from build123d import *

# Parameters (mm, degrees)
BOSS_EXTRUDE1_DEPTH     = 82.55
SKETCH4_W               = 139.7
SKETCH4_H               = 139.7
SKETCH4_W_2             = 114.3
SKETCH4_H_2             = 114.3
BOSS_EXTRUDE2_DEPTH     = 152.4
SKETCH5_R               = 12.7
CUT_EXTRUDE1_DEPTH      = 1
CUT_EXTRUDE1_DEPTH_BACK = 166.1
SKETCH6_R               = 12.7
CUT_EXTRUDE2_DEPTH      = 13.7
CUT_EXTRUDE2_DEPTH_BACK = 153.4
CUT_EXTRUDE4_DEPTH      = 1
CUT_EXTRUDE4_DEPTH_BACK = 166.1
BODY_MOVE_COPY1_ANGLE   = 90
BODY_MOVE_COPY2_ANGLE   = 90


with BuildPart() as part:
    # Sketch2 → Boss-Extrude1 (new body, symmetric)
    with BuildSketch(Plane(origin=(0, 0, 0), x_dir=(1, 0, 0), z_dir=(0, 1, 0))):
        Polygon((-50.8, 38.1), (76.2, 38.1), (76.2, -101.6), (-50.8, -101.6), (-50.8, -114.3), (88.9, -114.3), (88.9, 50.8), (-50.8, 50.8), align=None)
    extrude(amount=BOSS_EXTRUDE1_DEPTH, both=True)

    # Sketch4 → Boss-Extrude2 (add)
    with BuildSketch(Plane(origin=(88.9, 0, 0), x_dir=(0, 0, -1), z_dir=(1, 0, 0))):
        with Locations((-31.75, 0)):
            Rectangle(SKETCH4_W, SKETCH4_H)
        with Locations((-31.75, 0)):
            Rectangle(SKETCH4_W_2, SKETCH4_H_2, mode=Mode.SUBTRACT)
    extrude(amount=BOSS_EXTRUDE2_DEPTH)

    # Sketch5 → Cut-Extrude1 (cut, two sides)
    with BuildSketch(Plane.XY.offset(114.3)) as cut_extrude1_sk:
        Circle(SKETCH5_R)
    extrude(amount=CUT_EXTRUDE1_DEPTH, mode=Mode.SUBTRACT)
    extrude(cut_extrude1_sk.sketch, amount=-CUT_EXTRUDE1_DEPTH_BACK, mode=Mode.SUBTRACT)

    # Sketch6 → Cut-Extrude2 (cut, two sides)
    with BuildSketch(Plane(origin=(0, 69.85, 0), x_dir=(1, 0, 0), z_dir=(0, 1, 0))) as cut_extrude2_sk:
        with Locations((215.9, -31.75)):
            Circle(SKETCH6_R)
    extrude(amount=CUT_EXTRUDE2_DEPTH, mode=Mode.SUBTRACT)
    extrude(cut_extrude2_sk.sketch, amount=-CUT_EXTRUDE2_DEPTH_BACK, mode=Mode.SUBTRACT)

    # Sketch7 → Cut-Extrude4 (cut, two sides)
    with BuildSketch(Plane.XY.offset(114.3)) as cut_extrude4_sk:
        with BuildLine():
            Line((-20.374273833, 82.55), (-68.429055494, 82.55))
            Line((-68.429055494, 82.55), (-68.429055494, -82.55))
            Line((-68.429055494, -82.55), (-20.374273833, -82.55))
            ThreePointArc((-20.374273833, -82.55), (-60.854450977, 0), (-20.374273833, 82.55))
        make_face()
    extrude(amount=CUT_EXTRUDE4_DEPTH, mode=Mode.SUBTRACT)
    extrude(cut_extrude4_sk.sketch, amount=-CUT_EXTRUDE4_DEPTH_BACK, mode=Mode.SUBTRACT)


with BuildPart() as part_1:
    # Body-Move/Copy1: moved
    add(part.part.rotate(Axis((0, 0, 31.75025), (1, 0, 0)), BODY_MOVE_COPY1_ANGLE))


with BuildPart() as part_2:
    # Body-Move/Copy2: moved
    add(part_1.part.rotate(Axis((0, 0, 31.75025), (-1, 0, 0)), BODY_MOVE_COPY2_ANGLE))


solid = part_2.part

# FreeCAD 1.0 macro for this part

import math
import FreeCAD as App
import Part
import Sketcher
Q = App.Units.Quantity


def add_polygon(sketch, points):
    """Adds a closed chain of lines whose ends are joined by coincident constraints."""
    first, n = sketch.GeometryCount, len(points)
    for a, b in zip(points, points[1:] + points[:1]):
        sketch.addGeometry(Part.LineSegment(App.Vector(*a, 0), App.Vector(*b, 0)), False)
    for i in range(n):
        sketch.addConstraint(Sketcher.Constraint("Coincident", first + i, 2, first + (i + 1) % n, 1))

doc = App.newDocument("Part")
body = doc.addObject("PartDesign::Body", "Body")

# Sketch on XZ plane
sketch1 = doc.addObject("Sketcher::SketchObject", "Sketch")
body.addObject(sketch1)
sketch1.AttachmentSupport = (doc.XZ_Plane, [""])
sketch1.MapMode = "FlatFace"
add_polygon(sketch1, [(-50.8, -38.1), (76.2, -38.1), (76.2, 101.6), (-50.8, 101.6), (-50.8, 114.3), (88.9, 114.3), (88.9, -50.8), (-50.8, -50.8)])  # lines 0-7
sketch1.addConstraint(Sketcher.Constraint("Horizontal", 0))
sketch1.addConstraint(Sketcher.Constraint("Vertical", 1))
sketch1.addConstraint(Sketcher.Constraint("Horizontal", 2))
sketch1.addConstraint(Sketcher.Constraint("Vertical", 3))
sketch1.addConstraint(Sketcher.Constraint("Horizontal", 4))
sketch1.addConstraint(Sketcher.Constraint("Vertical", 5))
sketch1.addConstraint(Sketcher.Constraint("Horizontal", 6))
sketch1.addConstraint(Sketcher.Constraint("Vertical", 7))
sketch1.addConstraint(Sketcher.Constraint("Vertical", 3, 2, 6, 2))
sketch1.addConstraint(Sketcher.Constraint("Equal", 6, 1))
sketch1.addConstraint(Sketcher.Constraint("Equal", 3, 7))
sketch1.addConstraint(Sketcher.Constraint("DistanceX", 0, 1, 0, 2, Q("5 in")))
sketch1.addConstraint(Sketcher.Constraint("DistanceX", 4, 1, 4, 2, Q("5.5 in")))
sketch1.addConstraint(Sketcher.Constraint("DistanceY", 3, 1, 3, 2, Q("0.5 in")))
sketch1.addConstraint(Sketcher.Constraint("DistanceX", -1, 1, 0, 2, Q("3 in")))
sketch1.addConstraint(Sketcher.Constraint("DistanceY", -1, 1, 1, 2, Q("4 in")))
pad1 = doc.addObject("PartDesign::Pad", "Pad")
body.addObject(pad1)
pad1.Profile = sketch1
pad1.Length = Q("6.5 in")
pad1.Midplane = True

# Sketch on YZ plane
sketch2 = doc.addObject("Sketcher::SketchObject", "Sketch001")
body.addObject(sketch2)
sketch2.AttachmentSupport = (doc.YZ_Plane, [""])
sketch2.MapMode = "FlatFace"
sketch2.AttachmentOffset = App.Placement(App.Vector(0, 0, 3.5 * 25.4), App.Rotation())
add_polygon(sketch2, [(69.85, 101.6), (-69.85, 101.6), (-69.85, -38.1), (69.85, -38.1)])  # lines 0-3
add_polygon(sketch2, [(-57.15, -25.4), (-57.15, 88.9), (57.15, 88.9), (57.15, -25.4)])  # lines 4-7
sketch2.addConstraint(Sketcher.Constraint("Horizontal", 0))
sketch2.addConstraint(Sketcher.Constraint("Vertical", 1))
sketch2.addConstraint(Sketcher.Constraint("Horizontal", 2))
sketch2.addConstraint(Sketcher.Constraint("Vertical", 3))
sketch2.addConstraint(Sketcher.Constraint("Vertical", 4))
sketch2.addConstraint(Sketcher.Constraint("Horizontal", 5))
sketch2.addConstraint(Sketcher.Constraint("Vertical", 6))
sketch2.addConstraint(Sketcher.Constraint("Horizontal", 7))
sketch2.addConstraint(Sketcher.Constraint("Equal", 2, 1))
sketch2.addConstraint(Sketcher.Constraint("Equal", 7, 4))
sketch2.addConstraint(Sketcher.Constraint("DistanceX", 0, 2, 0, 1, Q("5.5 in")))
sketch2.addConstraint(Sketcher.Constraint("DistanceX", 5, 1, 5, 2, Q("4.5 in")))
sketch2.addConstraint(Sketcher.Constraint("DistanceY", -1, 1, 0, 2, Q("4 in")))
sketch2.addConstraint(Sketcher.Constraint("DistanceY", 6, 2, -1, 1, Q("1 in")))
sketch2.addConstraint(Sketcher.Constraint("DistanceX", 4, 2, 3, 2, Q("5 in")))
sketch2.addConstraint(Sketcher.Constraint("DistanceX", 0, 2, -1, 1, Q("2.75 in")))
pad2 = doc.addObject("PartDesign::Pad", "Pad001")
body.addObject(pad2)
pad2.Profile = sketch2
pad2.Length = Q("6 in")

# Sketch on XY plane
sketch3 = doc.addObject("Sketcher::SketchObject", "Sketch002")
body.addObject(sketch3)
sketch3.AttachmentSupport = (doc.XY_Plane, [""])
sketch3.MapMode = "FlatFace"
sketch3.AttachmentOffset = App.Placement(App.Vector(0, 0, 4.5 * 25.4), App.Rotation())
sketch3.addGeometry(Part.Circle(App.Vector(0, 0, 0), App.Vector(0, 0, 1), 12.7), False)
sketch3.addConstraint(Sketcher.Constraint("Coincident", 0, 3, -1, 1))
sketch3.addConstraint(Sketcher.Constraint("Diameter", 0, Q("1 in")))
pocket1 = doc.addObject("PartDesign::Pocket", "Pocket")
body.addObject(pocket1)
pocket1.Profile = sketch3
pocket1.Type = "ThroughAll"
pocket1.Midplane = True

# Sketch on XZ plane
sketch4 = doc.addObject("Sketcher::SketchObject", "Sketch003")
body.addObject(sketch4)
sketch4.AttachmentSupport = (doc.XZ_Plane, [""])
sketch4.MapMode = "FlatFace"
sketch4.AttachmentOffset = App.Placement(App.Vector(0, 0, -2.75 * 25.4), App.Rotation())
sketch4.addGeometry(Part.Circle(App.Vector(215.9, 31.75, 0), App.Vector(0, 0, 1), 12.7), False)
sketch4.addConstraint(Sketcher.Constraint("Diameter", 0, Q("1 in")))
sketch4.addConstraint(Sketcher.Constraint("DistanceX", -1, 1, 0, 3, Q("8.5 in")))
sketch4.addConstraint(Sketcher.Constraint("DistanceY", -1, 1, 0, 3, Q("1.25 in")))
pocket2 = doc.addObject("PartDesign::Pocket", "Pocket001")
body.addObject(pocket2)
pocket2.Profile = sketch4
pocket2.Type = "ThroughAll"
pocket2.Midplane = True

# Sketch on XY plane
sketch5 = doc.addObject("Sketcher::SketchObject", "Sketch004")
body.addObject(sketch5)
sketch5.AttachmentSupport = (doc.XY_Plane, [""])
sketch5.MapMode = "FlatFace"
sketch5.AttachmentOffset = App.Placement(App.Vector(0, 0, 4.5 * 25.4), App.Rotation())
sketch5.addGeometry(Part.LineSegment(App.Vector(-20.374274, 82.55, 0), App.Vector(-68.429055, 82.55, 0)), False)
sketch5.addGeometry(Part.LineSegment(App.Vector(-68.429055, 82.55, 0), App.Vector(-68.429055, -82.55, 0)), False)
sketch5.addGeometry(Part.LineSegment(App.Vector(-68.429055, -82.55, 0), App.Vector(-20.374274, -82.55, 0)), False)
sketch5.addGeometry(Part.ArcOfCircle(Part.Circle(App.Vector(43.556496, 0, 0), App.Vector(0, 0, 1), 104.410947), math.radians(127.755958), math.radians(232.244042)), False)
sketch5.addConstraint(Sketcher.Constraint("Coincident", 0, 2, 1, 1))
sketch5.addConstraint(Sketcher.Constraint("Coincident", 1, 2, 2, 1))
sketch5.addConstraint(Sketcher.Constraint("Coincident", 2, 2, 3, 2))
sketch5.addConstraint(Sketcher.Constraint("Coincident", 3, 1, 0, 1))
sketch5.addConstraint(Sketcher.Constraint("Horizontal", 0))
sketch5.addConstraint(Sketcher.Constraint("Vertical", 1))
sketch5.addConstraint(Sketcher.Constraint("Horizontal", 2))
sketch5.addConstraint(Sketcher.Constraint("Symmetric", 2, 2, 3, 1, -1))
sketch5.addConstraint(Sketcher.Constraint("DistanceY", 1, 2, 1, 1, Q("6.5 in")))
sketch5.addConstraint(Sketcher.Constraint("Radius", 3, Q("104.410947 mm")))
sketch5.addConstraint(Sketcher.Constraint("DistanceX", 0, 2, 0, 1, Q("48.054782 mm")))
sketch5.addConstraint(Sketcher.Constraint("DistanceX", -1, 1, 3, 3, Q("43.556496 mm")))
pocket3 = doc.addObject("PartDesign::Pocket", "Pocket002")
body.addObject(pocket3)
pocket3.Profile = sketch5
pocket3.Type = "ThroughAll"
pocket3.Midplane = True
body2 = doc.addObject("PartDesign::Body", "Body001")
doc.recompute()

body.Placement = App.Placement(App.Vector(0, 31.75025, 31.75025), App.Rotation(App.Vector(1, 0, 0), 90))
boolean = doc.addObject("PartDesign::Boolean", "Boolean")
body2.addObject(boolean)
boolean.Type = "Fuse"
boolean.addObjects([body])
body3 = doc.addObject("PartDesign::Body", "Body002")
doc.recompute()

body2.Placement = App.Placement(App.Vector(0, -31.75025, 31.75025), App.Rotation(App.Vector(-1, 0, 0), 90))
boolean2 = doc.addObject("PartDesign::Boolean", "Boolean001")
body3.addObject(boolean2)
boolean2.Type = "Fuse"
boolean2.addObjects([body2])

doc.recompute()
